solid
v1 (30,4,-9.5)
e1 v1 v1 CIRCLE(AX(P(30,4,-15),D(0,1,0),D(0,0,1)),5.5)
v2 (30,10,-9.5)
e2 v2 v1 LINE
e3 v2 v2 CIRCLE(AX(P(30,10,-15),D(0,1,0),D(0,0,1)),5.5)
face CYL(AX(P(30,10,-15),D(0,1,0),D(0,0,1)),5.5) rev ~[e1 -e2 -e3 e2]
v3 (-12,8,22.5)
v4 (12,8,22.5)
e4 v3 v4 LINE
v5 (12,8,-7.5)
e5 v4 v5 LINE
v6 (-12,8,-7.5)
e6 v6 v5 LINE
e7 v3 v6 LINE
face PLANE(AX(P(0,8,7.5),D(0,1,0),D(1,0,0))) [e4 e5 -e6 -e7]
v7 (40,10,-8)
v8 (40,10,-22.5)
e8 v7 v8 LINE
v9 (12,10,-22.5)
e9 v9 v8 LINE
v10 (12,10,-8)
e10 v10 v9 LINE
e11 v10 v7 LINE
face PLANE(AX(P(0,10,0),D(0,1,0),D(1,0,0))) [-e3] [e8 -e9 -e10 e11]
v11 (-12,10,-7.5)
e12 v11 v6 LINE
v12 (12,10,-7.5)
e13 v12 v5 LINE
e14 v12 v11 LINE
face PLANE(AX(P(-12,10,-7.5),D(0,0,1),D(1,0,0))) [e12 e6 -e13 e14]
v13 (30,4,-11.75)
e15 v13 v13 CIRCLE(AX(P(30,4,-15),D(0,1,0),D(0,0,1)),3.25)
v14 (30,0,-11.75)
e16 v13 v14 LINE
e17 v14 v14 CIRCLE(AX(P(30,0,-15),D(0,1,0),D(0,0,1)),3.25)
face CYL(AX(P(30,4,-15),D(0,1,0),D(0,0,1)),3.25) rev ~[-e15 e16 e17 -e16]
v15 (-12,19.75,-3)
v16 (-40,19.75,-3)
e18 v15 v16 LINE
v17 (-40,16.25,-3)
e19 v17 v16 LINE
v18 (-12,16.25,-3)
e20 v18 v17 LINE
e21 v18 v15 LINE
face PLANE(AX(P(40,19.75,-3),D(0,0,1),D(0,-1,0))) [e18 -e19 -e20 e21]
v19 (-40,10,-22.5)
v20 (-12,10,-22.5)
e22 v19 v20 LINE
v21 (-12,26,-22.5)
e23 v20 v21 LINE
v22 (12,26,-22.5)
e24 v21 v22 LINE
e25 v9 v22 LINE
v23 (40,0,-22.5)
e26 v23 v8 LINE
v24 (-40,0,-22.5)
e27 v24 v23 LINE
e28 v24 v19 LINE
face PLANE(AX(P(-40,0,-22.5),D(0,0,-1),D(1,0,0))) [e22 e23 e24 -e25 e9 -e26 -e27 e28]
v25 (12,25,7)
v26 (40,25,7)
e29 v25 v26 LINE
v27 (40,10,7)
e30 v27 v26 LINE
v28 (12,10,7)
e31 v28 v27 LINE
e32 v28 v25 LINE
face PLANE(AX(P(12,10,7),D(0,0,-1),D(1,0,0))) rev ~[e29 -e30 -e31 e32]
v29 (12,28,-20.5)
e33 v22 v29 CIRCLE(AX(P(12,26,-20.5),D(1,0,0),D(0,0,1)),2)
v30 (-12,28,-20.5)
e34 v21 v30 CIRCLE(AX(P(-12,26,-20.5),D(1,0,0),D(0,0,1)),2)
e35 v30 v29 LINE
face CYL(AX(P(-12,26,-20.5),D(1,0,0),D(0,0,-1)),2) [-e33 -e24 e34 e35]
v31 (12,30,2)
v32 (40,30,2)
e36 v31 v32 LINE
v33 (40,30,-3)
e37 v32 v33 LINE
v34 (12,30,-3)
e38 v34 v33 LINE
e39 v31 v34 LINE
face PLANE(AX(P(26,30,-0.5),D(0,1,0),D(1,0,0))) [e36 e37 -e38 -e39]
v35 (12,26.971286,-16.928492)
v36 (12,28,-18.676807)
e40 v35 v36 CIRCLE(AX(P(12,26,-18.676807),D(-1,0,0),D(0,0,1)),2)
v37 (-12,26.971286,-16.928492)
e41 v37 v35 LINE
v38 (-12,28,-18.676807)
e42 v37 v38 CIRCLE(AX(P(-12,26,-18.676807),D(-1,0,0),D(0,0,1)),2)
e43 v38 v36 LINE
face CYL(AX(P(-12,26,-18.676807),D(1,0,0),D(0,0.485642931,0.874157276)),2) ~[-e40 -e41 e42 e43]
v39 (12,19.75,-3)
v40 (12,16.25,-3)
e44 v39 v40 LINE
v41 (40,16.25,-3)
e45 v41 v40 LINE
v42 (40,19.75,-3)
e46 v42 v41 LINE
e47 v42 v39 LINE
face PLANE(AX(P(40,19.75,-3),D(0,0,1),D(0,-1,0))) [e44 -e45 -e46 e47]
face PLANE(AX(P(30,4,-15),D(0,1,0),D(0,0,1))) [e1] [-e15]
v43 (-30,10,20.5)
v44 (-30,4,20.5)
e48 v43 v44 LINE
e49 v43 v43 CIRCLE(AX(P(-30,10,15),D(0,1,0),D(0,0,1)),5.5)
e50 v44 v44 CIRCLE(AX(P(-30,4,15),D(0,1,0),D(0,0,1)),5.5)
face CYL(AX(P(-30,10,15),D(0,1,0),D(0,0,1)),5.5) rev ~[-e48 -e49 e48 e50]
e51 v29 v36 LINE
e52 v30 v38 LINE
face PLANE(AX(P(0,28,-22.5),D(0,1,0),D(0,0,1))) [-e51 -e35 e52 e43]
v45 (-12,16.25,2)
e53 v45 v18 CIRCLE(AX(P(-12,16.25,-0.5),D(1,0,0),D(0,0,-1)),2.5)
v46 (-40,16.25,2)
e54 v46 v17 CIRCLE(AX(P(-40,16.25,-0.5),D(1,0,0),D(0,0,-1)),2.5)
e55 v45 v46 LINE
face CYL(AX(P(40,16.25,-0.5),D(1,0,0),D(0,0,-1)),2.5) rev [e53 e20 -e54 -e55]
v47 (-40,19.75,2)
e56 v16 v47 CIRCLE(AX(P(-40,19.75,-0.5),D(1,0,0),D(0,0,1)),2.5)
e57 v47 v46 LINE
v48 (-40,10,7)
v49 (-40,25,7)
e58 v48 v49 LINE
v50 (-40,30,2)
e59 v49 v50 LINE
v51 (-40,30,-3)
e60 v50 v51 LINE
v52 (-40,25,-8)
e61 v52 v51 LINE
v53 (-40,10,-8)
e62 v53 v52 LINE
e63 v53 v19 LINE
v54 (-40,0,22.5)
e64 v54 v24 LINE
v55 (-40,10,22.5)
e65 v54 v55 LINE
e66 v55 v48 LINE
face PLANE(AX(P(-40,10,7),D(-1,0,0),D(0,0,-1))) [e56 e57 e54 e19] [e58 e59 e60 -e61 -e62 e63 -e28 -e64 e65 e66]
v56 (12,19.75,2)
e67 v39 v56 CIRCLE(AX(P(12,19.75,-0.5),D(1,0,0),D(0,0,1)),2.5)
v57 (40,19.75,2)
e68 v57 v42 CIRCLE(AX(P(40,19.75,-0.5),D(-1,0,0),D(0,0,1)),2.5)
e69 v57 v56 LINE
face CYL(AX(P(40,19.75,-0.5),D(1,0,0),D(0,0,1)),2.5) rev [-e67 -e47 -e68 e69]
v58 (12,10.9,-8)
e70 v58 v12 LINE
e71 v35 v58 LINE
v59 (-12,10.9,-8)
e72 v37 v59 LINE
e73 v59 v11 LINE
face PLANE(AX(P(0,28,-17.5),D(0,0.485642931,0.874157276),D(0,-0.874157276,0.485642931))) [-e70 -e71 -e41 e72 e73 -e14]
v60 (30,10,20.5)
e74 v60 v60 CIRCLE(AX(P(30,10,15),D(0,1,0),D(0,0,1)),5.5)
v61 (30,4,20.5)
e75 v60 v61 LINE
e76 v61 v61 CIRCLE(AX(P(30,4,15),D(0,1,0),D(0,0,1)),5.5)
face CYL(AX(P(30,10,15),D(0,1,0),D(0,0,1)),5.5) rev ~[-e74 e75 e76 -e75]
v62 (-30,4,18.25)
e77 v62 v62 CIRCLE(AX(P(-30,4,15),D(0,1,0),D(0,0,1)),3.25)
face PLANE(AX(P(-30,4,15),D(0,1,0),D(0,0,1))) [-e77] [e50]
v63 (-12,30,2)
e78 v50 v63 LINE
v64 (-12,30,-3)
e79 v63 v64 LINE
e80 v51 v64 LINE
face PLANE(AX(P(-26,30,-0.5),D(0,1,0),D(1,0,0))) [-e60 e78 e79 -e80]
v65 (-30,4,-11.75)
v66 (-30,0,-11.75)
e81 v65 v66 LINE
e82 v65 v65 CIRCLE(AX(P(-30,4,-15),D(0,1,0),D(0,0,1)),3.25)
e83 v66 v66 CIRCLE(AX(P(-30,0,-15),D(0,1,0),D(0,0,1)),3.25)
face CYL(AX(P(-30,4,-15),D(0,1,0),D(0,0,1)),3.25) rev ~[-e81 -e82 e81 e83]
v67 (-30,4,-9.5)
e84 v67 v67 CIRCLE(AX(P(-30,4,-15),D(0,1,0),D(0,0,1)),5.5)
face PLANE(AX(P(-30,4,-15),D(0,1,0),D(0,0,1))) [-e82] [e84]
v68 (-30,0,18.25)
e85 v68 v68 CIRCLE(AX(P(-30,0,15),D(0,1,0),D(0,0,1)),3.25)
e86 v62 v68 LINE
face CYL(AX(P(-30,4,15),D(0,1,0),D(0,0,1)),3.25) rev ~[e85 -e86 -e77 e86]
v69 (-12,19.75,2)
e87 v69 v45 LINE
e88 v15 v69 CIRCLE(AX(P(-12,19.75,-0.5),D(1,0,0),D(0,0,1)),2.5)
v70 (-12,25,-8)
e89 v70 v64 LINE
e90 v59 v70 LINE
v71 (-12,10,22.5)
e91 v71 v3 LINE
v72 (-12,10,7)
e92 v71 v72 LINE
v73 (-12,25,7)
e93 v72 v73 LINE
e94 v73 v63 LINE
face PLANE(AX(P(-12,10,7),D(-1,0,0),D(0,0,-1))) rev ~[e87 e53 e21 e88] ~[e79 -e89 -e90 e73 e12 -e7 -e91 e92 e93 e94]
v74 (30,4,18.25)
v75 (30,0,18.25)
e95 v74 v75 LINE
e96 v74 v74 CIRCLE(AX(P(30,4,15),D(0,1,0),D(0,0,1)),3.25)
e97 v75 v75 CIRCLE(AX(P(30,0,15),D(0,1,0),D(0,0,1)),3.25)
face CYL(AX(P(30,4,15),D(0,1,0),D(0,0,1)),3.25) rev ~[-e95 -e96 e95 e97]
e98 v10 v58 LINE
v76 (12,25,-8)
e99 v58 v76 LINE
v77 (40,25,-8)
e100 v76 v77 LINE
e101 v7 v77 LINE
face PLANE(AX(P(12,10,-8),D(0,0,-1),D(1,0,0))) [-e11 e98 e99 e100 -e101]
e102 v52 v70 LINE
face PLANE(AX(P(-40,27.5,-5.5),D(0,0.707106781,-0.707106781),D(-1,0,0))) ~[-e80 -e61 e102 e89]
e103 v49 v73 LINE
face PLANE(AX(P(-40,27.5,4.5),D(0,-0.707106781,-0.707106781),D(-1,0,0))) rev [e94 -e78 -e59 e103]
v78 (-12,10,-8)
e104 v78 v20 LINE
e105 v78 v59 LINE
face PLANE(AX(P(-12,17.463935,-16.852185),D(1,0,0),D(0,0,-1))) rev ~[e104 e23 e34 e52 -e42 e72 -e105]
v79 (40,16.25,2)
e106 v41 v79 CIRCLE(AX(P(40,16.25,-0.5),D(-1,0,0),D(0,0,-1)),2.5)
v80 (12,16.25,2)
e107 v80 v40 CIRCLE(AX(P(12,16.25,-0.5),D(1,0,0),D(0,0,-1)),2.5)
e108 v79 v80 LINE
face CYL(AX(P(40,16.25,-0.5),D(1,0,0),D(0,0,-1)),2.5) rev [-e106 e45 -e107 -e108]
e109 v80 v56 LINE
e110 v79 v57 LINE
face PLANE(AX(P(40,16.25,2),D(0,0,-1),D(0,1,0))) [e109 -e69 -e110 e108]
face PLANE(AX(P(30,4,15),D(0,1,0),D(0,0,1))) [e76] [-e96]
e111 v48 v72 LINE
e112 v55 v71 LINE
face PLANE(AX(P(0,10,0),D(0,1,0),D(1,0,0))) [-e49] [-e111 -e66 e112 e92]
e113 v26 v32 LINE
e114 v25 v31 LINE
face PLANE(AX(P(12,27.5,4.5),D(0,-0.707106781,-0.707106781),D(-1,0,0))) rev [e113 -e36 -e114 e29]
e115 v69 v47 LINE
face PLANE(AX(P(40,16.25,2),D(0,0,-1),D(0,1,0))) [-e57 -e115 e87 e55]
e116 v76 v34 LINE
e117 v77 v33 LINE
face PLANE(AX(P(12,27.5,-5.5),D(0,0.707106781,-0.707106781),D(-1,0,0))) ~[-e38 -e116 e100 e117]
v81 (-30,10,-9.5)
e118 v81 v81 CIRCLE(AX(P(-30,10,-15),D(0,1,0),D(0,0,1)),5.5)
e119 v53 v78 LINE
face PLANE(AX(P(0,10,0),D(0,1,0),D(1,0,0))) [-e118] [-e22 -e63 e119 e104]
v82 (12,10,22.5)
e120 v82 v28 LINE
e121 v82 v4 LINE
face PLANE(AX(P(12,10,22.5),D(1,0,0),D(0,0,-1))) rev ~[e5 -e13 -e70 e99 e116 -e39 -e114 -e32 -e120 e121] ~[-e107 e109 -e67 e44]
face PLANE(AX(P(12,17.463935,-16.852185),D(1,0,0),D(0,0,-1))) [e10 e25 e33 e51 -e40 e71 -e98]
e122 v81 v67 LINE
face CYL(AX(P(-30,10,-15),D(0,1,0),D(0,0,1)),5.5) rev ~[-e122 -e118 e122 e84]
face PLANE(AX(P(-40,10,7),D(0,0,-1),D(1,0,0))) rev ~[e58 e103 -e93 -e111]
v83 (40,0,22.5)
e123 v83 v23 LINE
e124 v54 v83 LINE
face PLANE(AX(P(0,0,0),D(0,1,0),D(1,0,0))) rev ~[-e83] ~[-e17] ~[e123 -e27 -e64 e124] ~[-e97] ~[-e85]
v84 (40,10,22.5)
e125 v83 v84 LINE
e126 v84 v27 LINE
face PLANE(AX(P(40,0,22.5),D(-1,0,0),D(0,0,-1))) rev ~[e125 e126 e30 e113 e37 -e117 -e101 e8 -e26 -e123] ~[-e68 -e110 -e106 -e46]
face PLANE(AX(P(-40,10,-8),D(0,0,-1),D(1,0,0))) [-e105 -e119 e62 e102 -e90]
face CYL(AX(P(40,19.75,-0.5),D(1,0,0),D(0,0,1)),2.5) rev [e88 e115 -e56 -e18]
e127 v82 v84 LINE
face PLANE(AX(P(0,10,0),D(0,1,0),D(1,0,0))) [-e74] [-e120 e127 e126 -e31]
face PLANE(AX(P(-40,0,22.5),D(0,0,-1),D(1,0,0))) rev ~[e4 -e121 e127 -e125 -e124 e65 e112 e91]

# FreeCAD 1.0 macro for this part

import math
import FreeCAD as App
import Part
import Sketcher


def edges_at(feature, points):
    """Names of the edges that pass closest to the given points."""
    edges = feature.Shape.Edges
    near = lambda p: min(range(len(edges)), key=lambda i: edges[i].distToShape(Part.Vertex(*p))[0])
    return sorted({f"Edge{near(p) + 1}" for p in points})


def add_polygon(sketch, points):
    """Adds a closed chain of lines whose ends are joined by coincident constraints."""
    first, n = sketch.GeometryCount, len(points)
    for a, b in zip(points, points[1:] + points[:1]):
        sketch.addGeometry(Part.LineSegment(App.Vector(*a, 0), App.Vector(*b, 0)), False)
    for i in range(n):
        sketch.addConstraint(Sketcher.Constraint("Coincident", first + i, 2, first + (i + 1) % n, 1))

doc = App.newDocument("Part")
body = doc.addObject("PartDesign::Body", "Body")

sketch1 = doc.addObject("Sketcher::SketchObject", "Sketch")
body.addObject(sketch1)
sketch1.AttachmentSupport = (doc.XZ_Plane, [""])
sketch1.MapMode = "FlatFace"
add_polygon(sketch1, [(-40, -22), (-40, 22), (40, 22), (40, -22)])
sketch1.addConstraint([
    Sketcher.Constraint("Vertical", 0),
    Sketcher.Constraint("Horizontal", 1),
    Sketcher.Constraint("Vertical", 2),
    Sketcher.Constraint("Horizontal", 3),
    Sketcher.Constraint("Symmetric", 0, 2, 2, 2, -1, 1),
    Sketcher.Constraint("DistanceX", 1, 1, 1, 2, 80.0),
    Sketcher.Constraint("DistanceY", 0, 1, 0, 2, 45.0),
])
pad1 = doc.addObject("PartDesign::Pad", "Pad")
body.addObject(pad1)
pad1.Profile = sketch1
pad1.Length = 10
pad1.Reversed = True

sketch2 = doc.addObject("Sketcher::SketchObject", "Sketch001")
body.addObject(sketch2)
sketch2.AttachmentSupport = (doc.YZ_Plane, [""])
sketch2.MapMode = "FlatFace"
add_polygon(sketch2, [(10, -22), (28, -22), (28, -18), (10, -8)])
sketch2.addConstraint([
    Sketcher.Constraint("Horizontal", 0),
    Sketcher.Constraint("Vertical", 1),
    Sketcher.Constraint("Vertical", 3),
    Sketcher.Constraint("DistanceX", 0, 1, 0, 2, 18.0),
    Sketcher.Constraint("DistanceY", 1, 1, 1, 2, 5.0),
    Sketcher.Constraint("DistanceY", 3, 2, 3, 1, 15.0),
    Sketcher.Constraint("DistanceX", -1, 1, 0, 2, 28.0),
    Sketcher.Constraint("DistanceY", 0, 2, -1, 1, 22.5),
])
pad2 = doc.addObject("PartDesign::Pad", "Pad001")
body.addObject(pad2)
pad2.Profile = sketch2
pad2.Length = 24
pad2.Midplane = True
doc.recompute()

fillet = doc.addObject("PartDesign::Fillet", "Fillet")
body.addObject(fillet)
fillet.Base = (pad2, edges_at(pad2, [(0, 28, -22.5), (0, 28, -17.5)]))
fillet.Radius = 2

sketch3 = doc.addObject("Sketcher::SketchObject", "Sketch002")
body.addObject(sketch3)
sketch3.AttachmentSupport = (doc.XZ_Plane, [""])
sketch3.MapMode = "FlatFace"
sketch3.AttachmentOffset = App.Placement(App.Vector(0, 0, -10), App.Rotation())
add_polygon(sketch3, [(-12, -8), (-12, 22), (12, 22), (12, -8)])
sketch3.addConstraint([
    Sketcher.Constraint("Vertical", 0),
    Sketcher.Constraint("Horizontal", 1),
    Sketcher.Constraint("Vertical", 2),
    Sketcher.Constraint("Horizontal", 3),
    Sketcher.Constraint("DistanceX", 1, 1, 1, 2, 24.0),
    Sketcher.Constraint("DistanceY", 0, 1, 0, 2, 30.0),
    Sketcher.Constraint("DistanceX", 0, 2, -1, 1, 12.0),
    Sketcher.Constraint("DistanceY", -1, 1, 0, 2, 22.5),
])
pocket1 = doc.addObject("PartDesign::Pocket", "Pocket")
body.addObject(pocket1)
pocket1.Profile = sketch3
pocket1.Length = 2
pocket1.Reversed = True

sketch4 = doc.addObject("Sketcher::SketchObject", "Sketch003")
body.addObject(sketch4)
sketch4.AttachmentSupport = (doc.XZ_Plane, [""])
sketch4.MapMode = "FlatFace"
sketch4.AttachmentOffset = App.Placement(App.Vector(0, 0, -10), App.Rotation())
add_polygon(sketch4, [(-40, -8), (-40, 7), (-12, 7), (-12, -8)])
add_polygon(sketch4, [(12, -8), (12, 7), (40, 7), (40, -8)])
sketch4.addConstraint([
    Sketcher.Constraint("Vertical", 0),
    Sketcher.Constraint("Horizontal", 1),
    Sketcher.Constraint("Vertical", 2),
    Sketcher.Constraint("Horizontal", 3),
    Sketcher.Constraint("Vertical", 4),
    Sketcher.Constraint("Horizontal", 5),
    Sketcher.Constraint("Vertical", 6),
    Sketcher.Constraint("Horizontal", 7),
    Sketcher.Constraint("Symmetric", 1, 2, 4, 2, -2),
    Sketcher.Constraint("Symmetric", 3, 2, 6, 2, -2),
    Sketcher.Constraint("DistanceX", 1, 1, 1, 2, 28.0),
    Sketcher.Constraint("DistanceY", 0, 1, 0, 2, 15.0),
    Sketcher.Constraint("DistanceX", 0, 2, -1, 1, 40.0),
    Sketcher.Constraint("DistanceY", -1, 1, 0, 2, 7.0),
])
pad3 = doc.addObject("PartDesign::Pad", "Pad002")
body.addObject(pad3)
pad3.Profile = sketch4
pad3.Length = 20
pad3.Reversed = True
doc.recompute()

chamfer = doc.addObject("PartDesign::Chamfer", "Chamfer")
body.addObject(chamfer)
chamfer.Base = (pad3, edges_at(pad3, [
    (-26, 30, 7),
    (-26, 30, -8),
    (26, 30, -8),
    (26, 30, 7),
]))
chamfer.Size = 5

sketch5 = doc.addObject("Sketcher::SketchObject", "Sketch004")
body.addObject(sketch5)
sketch5.AttachmentSupport = (doc.YZ_Plane, [""])
sketch5.MapMode = "FlatFace"
sketch5.AttachmentOffset = App.Placement(App.Vector(0, 0, 40), App.Rotation())
sketch5.addGeometry([
    Part.LineSegment(App.Vector(16.2, -3, 0), App.Vector(19.8, -3, 0)),
    Part.ArcOfCircle(Part.Circle(App.Vector(19.8, -0.5, 0), App.Vector(0, 0, 1), 2.5), math.radians(-90), math.radians(90)),
    Part.LineSegment(App.Vector(19.8, 2, 0), App.Vector(16.2, 2, 0)),
    Part.ArcOfCircle(Part.Circle(App.Vector(16.2, -0.5, 0), App.Vector(0, 0, 1), 2.5), math.radians(90), math.radians(270)),
], False)
sketch5.addConstraint([
    Sketcher.Constraint("Tangent", 0, 2, 1, 1),
    Sketcher.Constraint("Tangent", 1, 2, 2, 1),
    Sketcher.Constraint("Tangent", 2, 2, 3, 1),
    Sketcher.Constraint("Tangent", 3, 2, 0, 1),
    Sketcher.Constraint("Horizontal", 0),
    Sketcher.Constraint("Horizontal", 2),
    Sketcher.Constraint("Radius", 1, 2.5),
    Sketcher.Constraint("DistanceX", 0, 1, 0, 2, 3.5),
    Sketcher.Constraint("DistanceY", 0, 2, -1, 1, 3.0),
    Sketcher.Constraint("DistanceX", -1, 1, 1, 3, 19.75),
])
pocket2 = doc.addObject("PartDesign::Pocket", "Pocket001")
body.addObject(pocket2)
pocket2.Profile = sketch5
pocket2.Type = "ThroughAll"

sketch6 = doc.addObject("Sketcher::SketchObject", "Sketch005")
body.addObject(sketch6)
sketch6.AttachmentSupport = (doc.XZ_Plane, [""])
sketch6.MapMode = "FlatFace"
sketch6.AttachmentOffset = App.Placement(App.Vector(0, 0, -10), App.Rotation())
sketch6.addGeometry([
    Part.Circle(App.Vector(-30, -15, 0), App.Vector(0, 0, 1), 6),
    Part.Circle(App.Vector(-30, 15, 0), App.Vector(0, 0, 1), 6),
    Part.Circle(App.Vector(30, 15, 0), App.Vector(0, 0, 1), 6),
    Part.Circle(App.Vector(30, -15, 0), App.Vector(0, 0, 1), 6),
], False)
sketch6.addConstraint([
    Sketcher.Constraint("Equal", 0, 1),
    Sketcher.Constraint("Equal", 1, 2),
    Sketcher.Constraint("Equal", 2, 3),
    Sketcher.Constraint("Symmetric", 0, 3, 2, 3, -1, 1),
    Sketcher.Constraint("Symmetric", 1, 3, 3, 3, -1, 1),
    Sketcher.Constraint("Symmetric", 1, 3, 2, 3, -2),
    Sketcher.Constraint("Diameter", 0, 11.0),
    Sketcher.Constraint("DistanceX", 0, 3, -1, 1, 30.0),
    Sketcher.Constraint("DistanceY", 0, 3, -1, 1, 15.0),
])
pocket3 = doc.addObject("PartDesign::Pocket", "Pocket002")
body.addObject(pocket3)
pocket3.Profile = sketch6
pocket3.Length = 6
pocket3.Reversed = True

sketch7 = doc.addObject("Sketcher::SketchObject", "Sketch006")
body.addObject(sketch7)
sketch7.AttachmentSupport = (doc.XZ_Plane, [""])
sketch7.MapMode = "FlatFace"
sketch7.AttachmentOffset = App.Placement(App.Vector(0, 0, -4), App.Rotation())
sketch7.addGeometry([
    Part.Circle(App.Vector(-30, -15, 0), App.Vector(0, 0, 1), 3.2),
    Part.Circle(App.Vector(30, -15, 0), App.Vector(0, 0, 1), 3.2),
    Part.Circle(App.Vector(30, 15, 0), App.Vector(0, 0, 1), 3.2),
    Part.Circle(App.Vector(-30, 15, 0), App.Vector(0, 0, 1), 3.2),
], False)
sketch7.addConstraint([
    Sketcher.Constraint("Equal", 0, 1),
    Sketcher.Constraint("Equal", 1, 2),
    Sketcher.Constraint("Equal", 2, 3),
    Sketcher.Constraint("Symmetric", 0, 3, 2, 3, -1, 1),
    Sketcher.Constraint("Symmetric", 1, 3, 3, 3, -1, 1),
    Sketcher.Constraint("Symmetric", 0, 3, 1, 3, -2),
    Sketcher.Constraint("Diameter", 0, 6.5),
    Sketcher.Constraint("DistanceX", 0, 3, -1, 1, 30.0),
    Sketcher.Constraint("DistanceY", 0, 3, -1, 1, 15.0),
])
pocket4 = doc.addObject("PartDesign::Pocket", "Pocket003")
body.addObject(pocket4)
pocket4.Profile = sketch7
pocket4.Type = "ThroughAll"
pocket4.Reversed = True

doc.recompute()
